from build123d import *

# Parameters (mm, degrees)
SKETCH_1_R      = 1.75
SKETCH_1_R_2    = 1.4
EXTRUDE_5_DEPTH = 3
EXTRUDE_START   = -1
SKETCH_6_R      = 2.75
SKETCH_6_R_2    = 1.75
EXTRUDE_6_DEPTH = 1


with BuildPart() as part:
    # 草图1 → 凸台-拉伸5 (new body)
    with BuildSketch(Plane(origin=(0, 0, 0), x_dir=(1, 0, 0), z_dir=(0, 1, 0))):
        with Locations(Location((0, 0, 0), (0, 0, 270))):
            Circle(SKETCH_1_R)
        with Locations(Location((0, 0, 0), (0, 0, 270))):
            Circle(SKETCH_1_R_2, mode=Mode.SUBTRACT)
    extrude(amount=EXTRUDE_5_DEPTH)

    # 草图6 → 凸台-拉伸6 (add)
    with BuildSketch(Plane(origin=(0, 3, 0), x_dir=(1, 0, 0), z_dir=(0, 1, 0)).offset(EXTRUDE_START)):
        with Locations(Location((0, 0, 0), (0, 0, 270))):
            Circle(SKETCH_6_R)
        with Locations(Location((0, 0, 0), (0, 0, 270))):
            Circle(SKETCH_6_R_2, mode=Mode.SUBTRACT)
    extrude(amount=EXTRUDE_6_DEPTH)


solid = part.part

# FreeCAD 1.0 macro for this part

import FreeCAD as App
import Part
import Sketcher
Q = App.Units.Quantity

doc = App.newDocument("Part")
params = doc.addObject("Spreadsheet::Sheet", "Params")
for row, (alias, value) in enumerate([
    ("sketch1_diameter", "3.5 mm"),
    ("sketch1_diameter2", "2.8 mm"),
    ("pad1_length", "3 mm"),
    ("sketch2_diameter", "5.5 mm"),
    ("sketch2_diameter2", "3.5 mm"),
    ("pad2_length", "1 mm"),
], start=1):
    params.set(f"A{row}", alias)
    params.set(f"B{row}", "=" + value)
    params.setAlias(f"B{row}", alias)

body = doc.addObject("PartDesign::Body", "Body")

# Sketch on XZ plane
sketch1 = body.newObject("Sketcher::SketchObject", "Sketch")
sketch1.AttachmentSupport = (doc.getObject("XZ_Plane"), [""])
sketch1.MapMode = "FlatFace"
sketch1.addGeometry([
    Part.Circle(App.Vector(0, 0, 0), App.Vector(0, 0, 1), 1.8),
    Part.Circle(App.Vector(0, 0, 0), App.Vector(0, 0, 1), 1.4),
], False)
sketch1.addConstraint([
    Sketcher.Constraint("Coincident", 0, 3, -1, 1),
    Sketcher.Constraint("Coincident", 1, 3, -1, 1),
    Sketcher.Constraint("Diameter", 0, Q("3.5 mm")),
    Sketcher.Constraint("Diameter", 1, Q("2.8 mm")),
])
sketch1.setExpression("Constraints[2]", "Params.sketch1_diameter")
sketch1.setExpression("Constraints[3]", "Params.sketch1_diameter2")
pad1 = body.newObject("PartDesign::Pad", "Pad")
pad1.Profile = sketch1
pad1.setExpression("Length", "Params.pad1_length")
pad1.Reversed = True

# Sketch on XZ plane
sketch2 = body.newObject("Sketcher::SketchObject", "Sketch001")
sketch2.AttachmentSupport = (doc.getObject("XZ_Plane"), [""])
sketch2.MapMode = "FlatFace"
sketch2.AttachmentOffset = App.Placement(App.Vector(0, 0, -2), App.Rotation())
sketch2.addGeometry([
    Part.Circle(App.Vector(0, 0, 0), App.Vector(0, 0, 1), 2.8),
    Part.Circle(App.Vector(0, 0, 0), App.Vector(0, 0, 1), 1.8),
], False)
sketch2.addConstraint([
    Sketcher.Constraint("Coincident", 0, 3, -1, 1),
    Sketcher.Constraint("Coincident", 1, 3, -1, 1),
    Sketcher.Constraint("Diameter", 0, Q("5.5 mm")),
    Sketcher.Constraint("Diameter", 1, Q("3.5 mm")),
])
sketch2.setExpression("Constraints[2]", "Params.sketch2_diameter")
sketch2.setExpression("Constraints[3]", "Params.sketch2_diameter2")
pad2 = body.newObject("PartDesign::Pad", "Pad001")
pad2.Profile = sketch2
pad2.setExpression("Length", "Params.pad2_length")
pad2.Reversed = True

doc.recompute()
